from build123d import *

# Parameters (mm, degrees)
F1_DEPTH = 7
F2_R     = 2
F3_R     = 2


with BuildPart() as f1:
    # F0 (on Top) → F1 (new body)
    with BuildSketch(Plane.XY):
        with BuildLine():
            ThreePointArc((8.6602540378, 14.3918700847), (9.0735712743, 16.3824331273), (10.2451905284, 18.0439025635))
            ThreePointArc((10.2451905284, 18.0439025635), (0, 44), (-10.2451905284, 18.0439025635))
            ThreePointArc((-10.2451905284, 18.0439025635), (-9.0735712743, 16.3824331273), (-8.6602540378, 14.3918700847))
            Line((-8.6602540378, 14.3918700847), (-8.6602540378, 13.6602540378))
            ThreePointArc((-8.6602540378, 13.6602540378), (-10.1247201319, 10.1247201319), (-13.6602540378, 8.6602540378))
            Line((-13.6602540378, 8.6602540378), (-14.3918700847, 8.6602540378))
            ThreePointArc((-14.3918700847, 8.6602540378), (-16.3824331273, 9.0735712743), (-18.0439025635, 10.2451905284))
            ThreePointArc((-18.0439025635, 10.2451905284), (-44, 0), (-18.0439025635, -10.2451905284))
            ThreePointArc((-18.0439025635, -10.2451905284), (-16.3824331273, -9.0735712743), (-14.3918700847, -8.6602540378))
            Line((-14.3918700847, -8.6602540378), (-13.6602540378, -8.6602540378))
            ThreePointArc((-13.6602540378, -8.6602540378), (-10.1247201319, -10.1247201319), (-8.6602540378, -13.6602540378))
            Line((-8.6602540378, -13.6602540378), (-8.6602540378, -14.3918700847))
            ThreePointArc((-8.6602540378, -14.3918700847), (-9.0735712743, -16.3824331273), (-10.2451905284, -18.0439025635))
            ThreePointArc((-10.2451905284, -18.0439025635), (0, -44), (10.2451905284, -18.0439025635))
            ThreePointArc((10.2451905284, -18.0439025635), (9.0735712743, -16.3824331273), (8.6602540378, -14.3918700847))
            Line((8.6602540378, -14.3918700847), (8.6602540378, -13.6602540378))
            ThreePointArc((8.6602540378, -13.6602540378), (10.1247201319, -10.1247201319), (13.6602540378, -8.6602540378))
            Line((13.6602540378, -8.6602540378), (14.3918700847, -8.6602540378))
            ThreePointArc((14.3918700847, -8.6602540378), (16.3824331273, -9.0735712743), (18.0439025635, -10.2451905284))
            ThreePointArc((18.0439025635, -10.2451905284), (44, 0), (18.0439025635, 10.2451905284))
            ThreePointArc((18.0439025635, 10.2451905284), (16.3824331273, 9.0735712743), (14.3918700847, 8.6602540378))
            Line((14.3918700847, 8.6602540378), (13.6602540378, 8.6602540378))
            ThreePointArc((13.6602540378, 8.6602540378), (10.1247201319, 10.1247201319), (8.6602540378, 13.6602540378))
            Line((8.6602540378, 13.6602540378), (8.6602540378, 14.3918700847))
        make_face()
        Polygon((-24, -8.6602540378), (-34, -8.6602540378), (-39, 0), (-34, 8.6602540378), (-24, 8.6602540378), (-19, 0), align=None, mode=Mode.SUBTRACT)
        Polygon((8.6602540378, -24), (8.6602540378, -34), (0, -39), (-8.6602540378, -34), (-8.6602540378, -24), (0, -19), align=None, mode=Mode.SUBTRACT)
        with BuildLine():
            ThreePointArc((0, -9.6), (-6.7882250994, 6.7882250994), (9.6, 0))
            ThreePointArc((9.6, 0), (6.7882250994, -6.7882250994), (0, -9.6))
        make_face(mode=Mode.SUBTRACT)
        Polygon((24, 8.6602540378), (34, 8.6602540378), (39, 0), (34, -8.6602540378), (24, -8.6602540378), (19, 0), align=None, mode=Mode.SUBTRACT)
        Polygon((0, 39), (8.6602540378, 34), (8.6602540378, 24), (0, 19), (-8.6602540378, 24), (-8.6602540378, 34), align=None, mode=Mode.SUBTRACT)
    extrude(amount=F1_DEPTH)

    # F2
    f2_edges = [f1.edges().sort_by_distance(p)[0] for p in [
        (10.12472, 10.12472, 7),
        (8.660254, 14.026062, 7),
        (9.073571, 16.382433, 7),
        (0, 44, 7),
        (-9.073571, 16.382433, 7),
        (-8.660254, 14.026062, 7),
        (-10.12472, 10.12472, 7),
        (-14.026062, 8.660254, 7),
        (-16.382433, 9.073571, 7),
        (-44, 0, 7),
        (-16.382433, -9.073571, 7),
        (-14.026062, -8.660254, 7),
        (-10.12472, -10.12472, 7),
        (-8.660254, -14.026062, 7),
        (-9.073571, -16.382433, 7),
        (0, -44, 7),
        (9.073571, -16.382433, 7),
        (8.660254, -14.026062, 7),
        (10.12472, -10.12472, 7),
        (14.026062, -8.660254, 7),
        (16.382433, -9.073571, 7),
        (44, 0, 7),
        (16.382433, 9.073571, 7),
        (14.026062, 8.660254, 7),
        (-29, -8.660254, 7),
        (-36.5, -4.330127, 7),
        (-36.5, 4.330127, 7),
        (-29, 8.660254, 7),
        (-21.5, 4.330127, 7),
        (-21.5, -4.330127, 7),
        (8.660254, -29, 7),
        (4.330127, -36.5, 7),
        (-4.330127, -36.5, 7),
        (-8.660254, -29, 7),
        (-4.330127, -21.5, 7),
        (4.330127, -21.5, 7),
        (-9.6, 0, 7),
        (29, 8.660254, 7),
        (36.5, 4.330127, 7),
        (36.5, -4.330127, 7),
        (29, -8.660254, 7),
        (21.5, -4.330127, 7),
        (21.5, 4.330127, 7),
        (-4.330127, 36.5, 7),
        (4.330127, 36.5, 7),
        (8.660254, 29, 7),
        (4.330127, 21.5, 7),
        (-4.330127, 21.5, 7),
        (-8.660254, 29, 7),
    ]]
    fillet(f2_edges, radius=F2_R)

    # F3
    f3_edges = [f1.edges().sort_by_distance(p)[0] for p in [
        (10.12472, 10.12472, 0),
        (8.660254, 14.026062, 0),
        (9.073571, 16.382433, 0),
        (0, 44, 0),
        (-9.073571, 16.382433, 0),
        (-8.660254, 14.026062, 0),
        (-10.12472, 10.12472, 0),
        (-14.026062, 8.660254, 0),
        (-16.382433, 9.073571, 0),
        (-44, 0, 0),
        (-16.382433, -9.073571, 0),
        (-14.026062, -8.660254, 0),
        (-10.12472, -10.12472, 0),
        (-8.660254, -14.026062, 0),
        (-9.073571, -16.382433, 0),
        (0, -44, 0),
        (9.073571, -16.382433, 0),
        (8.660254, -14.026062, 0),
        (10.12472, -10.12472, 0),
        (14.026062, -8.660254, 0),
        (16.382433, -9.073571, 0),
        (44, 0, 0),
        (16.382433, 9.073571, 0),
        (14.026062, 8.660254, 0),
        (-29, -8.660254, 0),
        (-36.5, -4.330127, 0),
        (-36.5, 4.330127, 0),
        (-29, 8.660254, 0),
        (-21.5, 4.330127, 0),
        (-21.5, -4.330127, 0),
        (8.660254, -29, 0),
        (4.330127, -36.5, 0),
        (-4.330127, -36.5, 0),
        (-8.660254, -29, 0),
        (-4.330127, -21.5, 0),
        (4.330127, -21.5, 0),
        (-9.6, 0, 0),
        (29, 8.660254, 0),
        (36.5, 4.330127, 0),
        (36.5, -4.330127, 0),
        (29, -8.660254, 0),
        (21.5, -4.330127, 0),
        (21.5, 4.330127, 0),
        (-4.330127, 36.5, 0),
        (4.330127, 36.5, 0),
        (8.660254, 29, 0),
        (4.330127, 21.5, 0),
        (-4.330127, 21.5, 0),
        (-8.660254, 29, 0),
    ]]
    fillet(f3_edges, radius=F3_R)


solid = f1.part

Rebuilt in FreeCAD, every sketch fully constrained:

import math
import FreeCAD as App
import Part
import Sketcher
from FreeCAD import Vector
Q = App.Units.Quantity


def edges_at(feature, points):
    """Names of the edges that pass closest to the given points."""
    edges = feature.Shape.Edges
    near = lambda p: min(range(len(edges)), key=lambda i: edges[i].distToShape(Part.Vertex(*p))[0])
    return sorted({f"Edge{near(p) + 1}" for p in points})


def add_polygon(sketch, points):
    """Adds a closed chain of lines whose ends are joined by coincident constraints."""
    first, n = sketch.GeometryCount, len(points)
    for a, b in zip(points, points[1:] + points[:1]):
        sketch.addGeometry(Part.LineSegment(App.Vector(*a, 0), App.Vector(*b, 0)), False)
    for i in range(n):
        sketch.addConstraint(Sketcher.Constraint("Coincident", first + i, 2, first + (i + 1) % n, 1))

doc = App.newDocument("Part")
body = doc.addObject("PartDesign::Body", "Body")

# Sketch on XY plane
sketch1 = doc.addObject("Sketcher::SketchObject", "Sketch")
body.addObject(sketch1)
sketch1.AttachmentSupport = (doc.XY_Plane, [""])
sketch1.MapMode = "FlatFace"
sketch1.addGeometry(Part.ArcOfCircle(Part.Circle(Vector(13.7, 14.4, 0), Vector(0, 0, 1), 5), math.radians(133), math.radians(180)), False)  # 0
sketch1.addGeometry(Part.ArcOfCircle(Part.Circle(Vector(0, 29, 0), Vector(0, 0, 1), 15), math.radians(-47), math.radians(227)), False)  # 1
sketch1.addGeometry(Part.ArcOfCircle(Part.Circle(Vector(-13.7, 14.4, 0), Vector(0, 0, 1), 5), math.radians(0), math.radians(47)), False)  # 2
sketch1.addGeometry(Part.LineSegment(Vector(-8.7, 14.4, 0), Vector(-8.7, 13.7, 0)), False)  # 3
sketch1.addGeometry(Part.ArcOfCircle(Part.Circle(Vector(-13.7, 13.7, 0), Vector(0, 0, 1), 5), math.radians(-90), math.radians(0)), False)  # 4
sketch1.addGeometry(Part.LineSegment(Vector(-13.7, 8.7, 0), Vector(-14.4, 8.7, 0)), False)  # 5
sketch1.addGeometry(Part.ArcOfCircle(Part.Circle(Vector(-14.4, 13.7, 0), Vector(0, 0, 1), 5), math.radians(-137), math.radians(-90)), False)  # 6
sketch1.addGeometry(Part.ArcOfCircle(Part.Circle(Vector(-29, 0, 0), Vector(0, 0, 1), 15), math.radians(43), math.radians(317)), False)  # 7
sketch1.addGeometry(Part.ArcOfCircle(Part.Circle(Vector(-14.4, -13.7, 0), Vector(0, 0, 1), 5), math.radians(90), math.radians(137)), False)  # 8
sketch1.addGeometry(Part.LineSegment(Vector(-14.4, -8.7, 0), Vector(-13.7, -8.7, 0)), False)  # 9
sketch1.addGeometry(Part.ArcOfCircle(Part.Circle(Vector(-13.7, -13.7, 0), Vector(0, 0, 1), 5), math.radians(0), math.radians(90)), False)  # 10
sketch1.addGeometry(Part.LineSegment(Vector(-8.7, -13.7, 0), Vector(-8.7, -14.4, 0)), False)  # 11
sketch1.addGeometry(Part.ArcOfCircle(Part.Circle(Vector(-13.7, -14.4, 0), Vector(0, 0, 1), 5), math.radians(-47), math.radians(0)), False)  # 12
sketch1.addGeometry(Part.ArcOfCircle(Part.Circle(Vector(0, -29, 0), Vector(0, 0, 1), 15), math.radians(133), math.radians(407)), False)  # 13
sketch1.addGeometry(Part.ArcOfCircle(Part.Circle(Vector(13.7, -14.4, 0), Vector(0, 0, 1), 5), math.radians(180), math.radians(227)), False)  # 14
sketch1.addGeometry(Part.LineSegment(Vector(8.7, -14.4, 0), Vector(8.7, -13.7, 0)), False)  # 15
sketch1.addGeometry(Part.ArcOfCircle(Part.Circle(Vector(13.7, -13.7, 0), Vector(0, 0, 1), 5), math.radians(90), math.radians(180)), False)  # 16
sketch1.addGeometry(Part.LineSegment(Vector(13.7, -8.7, 0), Vector(14.4, -8.7, 0)), False)  # 17
sketch1.addGeometry(Part.ArcOfCircle(Part.Circle(Vector(14.4, -13.7, 0), Vector(0, 0, 1), 5), math.radians(43), math.radians(90)), False)  # 18
sketch1.addGeometry(Part.ArcOfCircle(Part.Circle(Vector(29, 0, 0), Vector(0, 0, 1), 15), math.radians(-137), math.radians(137)), False)  # 19
sketch1.addGeometry(Part.ArcOfCircle(Part.Circle(Vector(14.4, 13.7, 0), Vector(0, 0, 1), 5), math.radians(-90), math.radians(-43)), False)  # 20
sketch1.addGeometry(Part.LineSegment(Vector(14.4, 8.7, 0), Vector(13.7, 8.7, 0)), False)  # 21
sketch1.addGeometry(Part.ArcOfCircle(Part.Circle(Vector(13.7, 13.7, 0), Vector(0, 0, 1), 5), math.radians(180), math.radians(270)), False)  # 22
sketch1.addGeometry(Part.LineSegment(Vector(8.7, 13.7, 0), Vector(8.7, 14.4, 0)), False)  # 23
add_polygon(sketch1, [(0, -19), (8.7, -24), (8.7, -34), (0, -39), (-8.7, -34), (-8.7, -24)])  # lines 24-29
add_polygon(sketch1, [(-19, 0), (-24, -8.7), (-34, -8.7), (-39, 0), (-34, 8.7), (-24, 8.7)])  # lines 30-35
sketch1.addGeometry(Part.ArcOfCircle(Part.Circle(Vector(0, 0, 0), Vector(0, 0, 1), 9.6), math.radians(-90), math.radians(0)), False)  # 36
sketch1.addGeometry(Part.ArcOfCircle(Part.Circle(Vector(0, 0, 0), Vector(0, 0, 1), 9.6), math.radians(0), math.radians(270)), False)  # 37
add_polygon(sketch1, [(19, 0), (24, 8.7), (34, 8.7), (39, 0), (34, -8.7), (24, -8.7)])  # lines 38-43
add_polygon(sketch1, [(-8.7, 34), (0, 39), (8.7, 34), (8.7, 24), (0, 19), (-8.7, 24)])  # lines 44-49
sketch1.addConstraint(Sketcher.Constraint("Tangent", 0, 1, 1, 1))
sketch1.addConstraint(Sketcher.Constraint("Tangent", 1, 2, 2, 2))
sketch1.addConstraint(Sketcher.Constraint("Tangent", 2, 1, 3, 1))
sketch1.addConstraint(Sketcher.Constraint("Tangent", 3, 2, 4, 2))
sketch1.addConstraint(Sketcher.Constraint("Tangent", 4, 1, 5, 1))
sketch1.addConstraint(Sketcher.Constraint("Tangent", 5, 2, 6, 2))
sketch1.addConstraint(Sketcher.Constraint("Tangent", 6, 1, 7, 1))
sketch1.addConstraint(Sketcher.Constraint("Tangent", 7, 2, 8, 2))
sketch1.addConstraint(Sketcher.Constraint("Tangent", 8, 1, 9, 1))
sketch1.addConstraint(Sketcher.Constraint("Tangent", 9, 2, 10, 2))
sketch1.addConstraint(Sketcher.Constraint("Tangent", 10, 1, 11, 1))
sketch1.addConstraint(Sketcher.Constraint("Tangent", 11, 2, 12, 2))
sketch1.addConstraint(Sketcher.Constraint("Tangent", 12, 1, 13, 1))
sketch1.addConstraint(Sketcher.Constraint("Tangent", 13, 2, 14, 2))
sketch1.addConstraint(Sketcher.Constraint("Tangent", 14, 1, 15, 1))
sketch1.addConstraint(Sketcher.Constraint("Tangent", 15, 2, 16, 2))
sketch1.addConstraint(Sketcher.Constraint("Tangent", 16, 1, 17, 1))
sketch1.addConstraint(Sketcher.Constraint("Tangent", 17, 2, 18, 2))
sketch1.addConstraint(Sketcher.Constraint("Tangent", 18, 1, 19, 1))
sketch1.addConstraint(Sketcher.Constraint("Tangent", 19, 2, 20, 2))
sketch1.addConstraint(Sketcher.Constraint("Tangent", 20, 1, 21, 1))
sketch1.addConstraint(Sketcher.Constraint("Tangent", 21, 2, 22, 2))
sketch1.addConstraint(Sketcher.Constraint("Tangent", 22, 1, 23, 1))
sketch1.addConstraint(Sketcher.Constraint("Tangent", 23, 2, 0, 2))
sketch1.addConstraint(Sketcher.Constraint("Tangent", 36, 1, 37, 2))
sketch1.addConstraint(Sketcher.Constraint("Coincident", 37, 1, 36, 2))
sketch1.addConstraint(Sketcher.Constraint("Vertical", 3))
sketch1.addConstraint(Sketcher.Constraint("Horizontal", 5))
sketch1.addConstraint(Sketcher.Constraint("Horizontal", 9))
sketch1.addConstraint(Sketcher.Constraint("Vertical", 11))
sketch1.addConstraint(Sketcher.Constraint("Vertical", 15))
sketch1.addConstraint(Sketcher.Constraint("Horizontal", 17))
sketch1.addConstraint(Sketcher.Constraint("Horizontal", 21))
sketch1.addConstraint(Sketcher.Constraint("Vertical", 23))
sketch1.addConstraint(Sketcher.Constraint("Vertical", 25))
sketch1.addConstraint(Sketcher.Constraint("Vertical", 28))
sketch1.addConstraint(Sketcher.Constraint("Horizontal", 31))
sketch1.addConstraint(Sketcher.Constraint("Horizontal", 34))
sketch1.addConstraint(Sketcher.Constraint("Horizontal", 39))
sketch1.addConstraint(Sketcher.Constraint("Horizontal", 42))
sketch1.addConstraint(Sketcher.Constraint("Vertical", 46))
sketch1.addConstraint(Sketcher.Constraint("Vertical", 49))
sketch1.addConstraint(Sketcher.Constraint("Coincident", 36, 3, -1, 1))
sketch1.addConstraint(Sketcher.Constraint("Equal", 0, 2))
sketch1.addConstraint(Sketcher.Constraint("Equal", 2, 4))
sketch1.addConstraint(Sketcher.Constraint("Equal", 4, 6))
sketch1.addConstraint(Sketcher.Constraint("Equal", 1, 7))
sketch1.addConstraint(Sketcher.Constraint("Equal", 6, 8))
sketch1.addConstraint(Sketcher.Constraint("Equal", 8, 10))
sketch1.addConstraint(Sketcher.Constraint("Equal", 10, 12))
sketch1.addConstraint(Sketcher.Constraint("Equal", 7, 13))
sketch1.addConstraint(Sketcher.Constraint("Equal", 12, 14))
sketch1.addConstraint(Sketcher.Constraint("Equal", 14, 16))
sketch1.addConstraint(Sketcher.Constraint("Equal", 16, 18))
sketch1.addConstraint(Sketcher.Constraint("Equal", 13, 19))
sketch1.addConstraint(Sketcher.Constraint("Equal", 18, 20))
sketch1.addConstraint(Sketcher.Constraint("Equal", 20, 22))
sketch1.addConstraint(Sketcher.Constraint("Symmetric", 0, 3, 12, 3, -1, 1))
sketch1.addConstraint(Sketcher.Constraint("Symmetric", 2, 3, 14, 3, -1, 1))
sketch1.addConstraint(Sketcher.Constraint("Symmetric", 6, 3, 18, 3, -1, 1))
sketch1.addConstraint(Sketcher.Constraint("Symmetric", 8, 3, 20, 3, -1, 1))
sketch1.addConstraint(Sketcher.Constraint("Symmetric", 30, 2, 38, 2, -1, 1))
sketch1.addConstraint(Sketcher.Constraint("Symmetric", 32, 2, 40, 2, -1, 1))
sketch1.addConstraint(Sketcher.Constraint("Symmetric", 33, 2, 41, 2, -1, 1))
sketch1.addConstraint(Sketcher.Constraint("Symmetric", 35, 2, 43, 2, -1, 1))
sketch1.addConstraint(Sketcher.Constraint("Symmetric", 26, 2, 44, 2, -1, 1))
sketch1.addConstraint(Sketcher.Constraint("Symmetric", 27, 2, 45, 2, -1, 1))
sketch1.addConstraint(Sketcher.Constraint("Symmetric", 29, 2, 47, 2, -1, 1))
sketch1.addConstraint(Sketcher.Constraint("Symmetric", 24, 2, 48, 2, -1, 1))
sketch1.addConstraint(Sketcher.Constraint("Symmetric", 0, 3, 2, 3, -2))
sketch1.addConstraint(Sketcher.Constraint("Symmetric", 8, 3, 18, 3, -2))
sketch1.addConstraint(Sketcher.Constraint("Symmetric", 25, 2, 27, 2, -2))
sketch1.addConstraint(Sketcher.Constraint("Symmetric", 34, 2, 38, 2, -2))
sketch1.addConstraint(Sketcher.Constraint("PointOnObject", 26, 2, -2))
sketch1.addConstraint(Sketcher.Constraint("PointOnObject", 29, 2, -2))
sketch1.addConstraint(Sketcher.Constraint("PointOnObject", 32, 2, -1))
sketch1.addConstraint(Sketcher.Constraint("PointOnObject", 35, 2, -1))
sketch1.addConstraint(Sketcher.Constraint("PointOnObject", 36, 1, -2))
sketch1.addConstraint(Sketcher.Constraint("PointOnObject", 37, 1, -1))
sketch1.addConstraint(Sketcher.Constraint("Parallel", 24, 27))
sketch1.addConstraint(Sketcher.Constraint("Parallel", 26, 29))
sketch1.addConstraint(Sketcher.Constraint("Perpendicular", 27, 30))
sketch1.addConstraint(Sketcher.Constraint("Perpendicular", 29, 32))
sketch1.addConstraint(Sketcher.Constraint("Parallel", 30, 33))
sketch1.addConstraint(Sketcher.Constraint("Parallel", 35, 40))
sketch1.addConstraint(Sketcher.Constraint("Parallel", 40, 43))
sketch1.addConstraint(Sketcher.Constraint("Perpendicular", 43, 44))
sketch1.addConstraint(Sketcher.Constraint("Parallel", 44, 47))
sketch1.addConstraint(Sketcher.Constraint("Horizontal", 17, 2, 30, 2))
sketch1.addConstraint(Sketcher.Constraint("Vertical", 23, 2, 24, 2))
sketch1.addConstraint(Sketcher.Constraint("Equal", 21, 3))
sketch1.addConstraint(Sketcher.Constraint("Equal", 42, 25))
sketch1.addConstraint(Sketcher.Constraint("Equal", 29, 30))
sketch1.addConstraint(Sketcher.Constraint("Radius", 0, Q("5 mm")))
sketch1.addConstraint(Sketcher.Constraint("Radius", 1, Q("15 mm")))
sketch1.addConstraint(Sketcher.Constraint("Radius", 36, Q("9.6 mm")))
sketch1.addConstraint(Sketcher.Constraint("DistanceX", 31, 2, 31, 1, Q("10 mm")))
sketch1.addConstraint(Sketcher.Constraint("Angle", 24, Q("-30 deg")))
sketch1.addConstraint(Sketcher.Constraint("Distance", 24, Q("10 mm")))
sketch1.addConstraint(Sketcher.Constraint("DistanceY", -1, 1, 1, 3, Q("29 mm")))
sketch1.addConstraint(Sketcher.Constraint("DistanceY", 24, 2, -1, 1, Q("24 mm")))
sketch1.addConstraint(Sketcher.Constraint("DistanceX", 30, 2, -1, 1, Q("24 mm")))
pad1 = doc.addObject("PartDesign::Pad", "Pad")
body.addObject(pad1)
pad1.Profile = sketch1
pad1.Length = 7
doc.recompute()

fillet = doc.addObject("PartDesign::Fillet", "Fillet")
body.addObject(fillet)
fillet.Base = (pad1, edges_at(pad1, [
    (10.125, 10.125, 7),
    (8.66, 14.026, 7),
    (9.074, 16.382, 7),
    (0, 44, 7),
    (-9.074, 16.382, 7),
    (-8.66, 14.026, 7),
    (-10.125, 10.125, 7),
    (-14.026, 8.66, 7),
    (-16.382, 9.074, 7),
    (-44, 0, 7),
    (-16.382, -9.074, 7),
    (-14.026, -8.66, 7),
    (-10.125, -10.125, 7),
    (-8.66, -14.026, 7),
    (-9.074, -16.382, 7),
    (0, -44, 7),
    (9.074, -16.382, 7),
    (8.66, -14.026, 7),
    (10.125, -10.125, 7),
    (14.026, -8.66, 7),
    (16.382, -9.074, 7),
    (44, 0, 7),
    (16.382, 9.074, 7),
    (14.026, 8.66, 7),
    (-29, -8.66, 7),
    (-36.5, -4.33, 7),
    (-36.5, 4.33, 7),
    (-29, 8.66, 7),
    (-21.5, 4.33, 7),
    (-21.5, -4.33, 7),
    (8.66, -29, 7),
    (4.33, -36.5, 7),
    (-4.33, -36.5, 7),
    (-8.66, -29, 7),
    (-4.33, -21.5, 7),
    (4.33, -21.5, 7),
    (-6.788, 6.788, 7),
    (29, 8.66, 7),
    (36.5, 4.33, 7),
    (36.5, -4.33, 7),
    (29, -8.66, 7),
    (21.5, -4.33, 7),
    (21.5, 4.33, 7),
    (-4.33, 36.5, 7),
    (4.33, 36.5, 7),
    (8.66, 29, 7),
    (4.33, 21.5, 7),
    (-4.33, 21.5, 7),
    (-8.66, 29, 7),
]))
fillet.Radius = 2
doc.recompute()

fillet2 = doc.addObject("PartDesign::Fillet", "Fillet001")
body.addObject(fillet2)
fillet2.Base = (fillet, edges_at(fillet, [
    (10.125, 10.125, 0),
    (8.66, 14.026, 0),
    (9.074, 16.382, 0),
    (0, 44, 0),
    (-9.074, 16.382, 0),
    (-8.66, 14.026, 0),
    (-10.125, 10.125, 0),
    (-14.026, 8.66, 0),
    (-16.382, 9.074, 0),
    (-44, 0, 0),
    (-16.382, -9.074, 0),
    (-14.026, -8.66, 0),
    (-10.125, -10.125, 0),
    (-8.66, -14.026, 0),
    (-9.074, -16.382, 0),
    (0, -44, 0),
    (9.074, -16.382, 0),
    (8.66, -14.026, 0),
    (10.125, -10.125, 0),
    (14.026, -8.66, 0),
    (16.382, -9.074, 0),
    (44, 0, 0),
    (16.382, 9.074, 0),
    (14.026, 8.66, 0),
    (-29, -8.66, 0),
    (-36.5, -4.33, 0),
    (-36.5, 4.33, 0),
    (-29, 8.66, 0),
    (-21.5, 4.33, 0),
    (-21.5, -4.33, 0),
    (8.66, -29, 0),
    (4.33, -36.5, 0),
    (-4.33, -36.5, 0),
    (-8.66, -29, 0),
    (-4.33, -21.5, 0),
    (4.33, -21.5, 0),
    (-6.788, 6.788, 0),
    (29, 8.66, 0),
    (36.5, 4.33, 0),
    (36.5, -4.33, 0),
    (29, -8.66, 0),
    (21.5, -4.33, 0),
    (21.5, 4.33, 0),
    (-4.33, 36.5, 0),
    (4.33, 36.5, 0),
    (8.66, 29, 0),
    (4.33, 21.5, 0),
    (-4.33, 21.5, 0),
    (-8.66, 29, 0),
]))
fillet2.Radius = 2

doc.recompute()
